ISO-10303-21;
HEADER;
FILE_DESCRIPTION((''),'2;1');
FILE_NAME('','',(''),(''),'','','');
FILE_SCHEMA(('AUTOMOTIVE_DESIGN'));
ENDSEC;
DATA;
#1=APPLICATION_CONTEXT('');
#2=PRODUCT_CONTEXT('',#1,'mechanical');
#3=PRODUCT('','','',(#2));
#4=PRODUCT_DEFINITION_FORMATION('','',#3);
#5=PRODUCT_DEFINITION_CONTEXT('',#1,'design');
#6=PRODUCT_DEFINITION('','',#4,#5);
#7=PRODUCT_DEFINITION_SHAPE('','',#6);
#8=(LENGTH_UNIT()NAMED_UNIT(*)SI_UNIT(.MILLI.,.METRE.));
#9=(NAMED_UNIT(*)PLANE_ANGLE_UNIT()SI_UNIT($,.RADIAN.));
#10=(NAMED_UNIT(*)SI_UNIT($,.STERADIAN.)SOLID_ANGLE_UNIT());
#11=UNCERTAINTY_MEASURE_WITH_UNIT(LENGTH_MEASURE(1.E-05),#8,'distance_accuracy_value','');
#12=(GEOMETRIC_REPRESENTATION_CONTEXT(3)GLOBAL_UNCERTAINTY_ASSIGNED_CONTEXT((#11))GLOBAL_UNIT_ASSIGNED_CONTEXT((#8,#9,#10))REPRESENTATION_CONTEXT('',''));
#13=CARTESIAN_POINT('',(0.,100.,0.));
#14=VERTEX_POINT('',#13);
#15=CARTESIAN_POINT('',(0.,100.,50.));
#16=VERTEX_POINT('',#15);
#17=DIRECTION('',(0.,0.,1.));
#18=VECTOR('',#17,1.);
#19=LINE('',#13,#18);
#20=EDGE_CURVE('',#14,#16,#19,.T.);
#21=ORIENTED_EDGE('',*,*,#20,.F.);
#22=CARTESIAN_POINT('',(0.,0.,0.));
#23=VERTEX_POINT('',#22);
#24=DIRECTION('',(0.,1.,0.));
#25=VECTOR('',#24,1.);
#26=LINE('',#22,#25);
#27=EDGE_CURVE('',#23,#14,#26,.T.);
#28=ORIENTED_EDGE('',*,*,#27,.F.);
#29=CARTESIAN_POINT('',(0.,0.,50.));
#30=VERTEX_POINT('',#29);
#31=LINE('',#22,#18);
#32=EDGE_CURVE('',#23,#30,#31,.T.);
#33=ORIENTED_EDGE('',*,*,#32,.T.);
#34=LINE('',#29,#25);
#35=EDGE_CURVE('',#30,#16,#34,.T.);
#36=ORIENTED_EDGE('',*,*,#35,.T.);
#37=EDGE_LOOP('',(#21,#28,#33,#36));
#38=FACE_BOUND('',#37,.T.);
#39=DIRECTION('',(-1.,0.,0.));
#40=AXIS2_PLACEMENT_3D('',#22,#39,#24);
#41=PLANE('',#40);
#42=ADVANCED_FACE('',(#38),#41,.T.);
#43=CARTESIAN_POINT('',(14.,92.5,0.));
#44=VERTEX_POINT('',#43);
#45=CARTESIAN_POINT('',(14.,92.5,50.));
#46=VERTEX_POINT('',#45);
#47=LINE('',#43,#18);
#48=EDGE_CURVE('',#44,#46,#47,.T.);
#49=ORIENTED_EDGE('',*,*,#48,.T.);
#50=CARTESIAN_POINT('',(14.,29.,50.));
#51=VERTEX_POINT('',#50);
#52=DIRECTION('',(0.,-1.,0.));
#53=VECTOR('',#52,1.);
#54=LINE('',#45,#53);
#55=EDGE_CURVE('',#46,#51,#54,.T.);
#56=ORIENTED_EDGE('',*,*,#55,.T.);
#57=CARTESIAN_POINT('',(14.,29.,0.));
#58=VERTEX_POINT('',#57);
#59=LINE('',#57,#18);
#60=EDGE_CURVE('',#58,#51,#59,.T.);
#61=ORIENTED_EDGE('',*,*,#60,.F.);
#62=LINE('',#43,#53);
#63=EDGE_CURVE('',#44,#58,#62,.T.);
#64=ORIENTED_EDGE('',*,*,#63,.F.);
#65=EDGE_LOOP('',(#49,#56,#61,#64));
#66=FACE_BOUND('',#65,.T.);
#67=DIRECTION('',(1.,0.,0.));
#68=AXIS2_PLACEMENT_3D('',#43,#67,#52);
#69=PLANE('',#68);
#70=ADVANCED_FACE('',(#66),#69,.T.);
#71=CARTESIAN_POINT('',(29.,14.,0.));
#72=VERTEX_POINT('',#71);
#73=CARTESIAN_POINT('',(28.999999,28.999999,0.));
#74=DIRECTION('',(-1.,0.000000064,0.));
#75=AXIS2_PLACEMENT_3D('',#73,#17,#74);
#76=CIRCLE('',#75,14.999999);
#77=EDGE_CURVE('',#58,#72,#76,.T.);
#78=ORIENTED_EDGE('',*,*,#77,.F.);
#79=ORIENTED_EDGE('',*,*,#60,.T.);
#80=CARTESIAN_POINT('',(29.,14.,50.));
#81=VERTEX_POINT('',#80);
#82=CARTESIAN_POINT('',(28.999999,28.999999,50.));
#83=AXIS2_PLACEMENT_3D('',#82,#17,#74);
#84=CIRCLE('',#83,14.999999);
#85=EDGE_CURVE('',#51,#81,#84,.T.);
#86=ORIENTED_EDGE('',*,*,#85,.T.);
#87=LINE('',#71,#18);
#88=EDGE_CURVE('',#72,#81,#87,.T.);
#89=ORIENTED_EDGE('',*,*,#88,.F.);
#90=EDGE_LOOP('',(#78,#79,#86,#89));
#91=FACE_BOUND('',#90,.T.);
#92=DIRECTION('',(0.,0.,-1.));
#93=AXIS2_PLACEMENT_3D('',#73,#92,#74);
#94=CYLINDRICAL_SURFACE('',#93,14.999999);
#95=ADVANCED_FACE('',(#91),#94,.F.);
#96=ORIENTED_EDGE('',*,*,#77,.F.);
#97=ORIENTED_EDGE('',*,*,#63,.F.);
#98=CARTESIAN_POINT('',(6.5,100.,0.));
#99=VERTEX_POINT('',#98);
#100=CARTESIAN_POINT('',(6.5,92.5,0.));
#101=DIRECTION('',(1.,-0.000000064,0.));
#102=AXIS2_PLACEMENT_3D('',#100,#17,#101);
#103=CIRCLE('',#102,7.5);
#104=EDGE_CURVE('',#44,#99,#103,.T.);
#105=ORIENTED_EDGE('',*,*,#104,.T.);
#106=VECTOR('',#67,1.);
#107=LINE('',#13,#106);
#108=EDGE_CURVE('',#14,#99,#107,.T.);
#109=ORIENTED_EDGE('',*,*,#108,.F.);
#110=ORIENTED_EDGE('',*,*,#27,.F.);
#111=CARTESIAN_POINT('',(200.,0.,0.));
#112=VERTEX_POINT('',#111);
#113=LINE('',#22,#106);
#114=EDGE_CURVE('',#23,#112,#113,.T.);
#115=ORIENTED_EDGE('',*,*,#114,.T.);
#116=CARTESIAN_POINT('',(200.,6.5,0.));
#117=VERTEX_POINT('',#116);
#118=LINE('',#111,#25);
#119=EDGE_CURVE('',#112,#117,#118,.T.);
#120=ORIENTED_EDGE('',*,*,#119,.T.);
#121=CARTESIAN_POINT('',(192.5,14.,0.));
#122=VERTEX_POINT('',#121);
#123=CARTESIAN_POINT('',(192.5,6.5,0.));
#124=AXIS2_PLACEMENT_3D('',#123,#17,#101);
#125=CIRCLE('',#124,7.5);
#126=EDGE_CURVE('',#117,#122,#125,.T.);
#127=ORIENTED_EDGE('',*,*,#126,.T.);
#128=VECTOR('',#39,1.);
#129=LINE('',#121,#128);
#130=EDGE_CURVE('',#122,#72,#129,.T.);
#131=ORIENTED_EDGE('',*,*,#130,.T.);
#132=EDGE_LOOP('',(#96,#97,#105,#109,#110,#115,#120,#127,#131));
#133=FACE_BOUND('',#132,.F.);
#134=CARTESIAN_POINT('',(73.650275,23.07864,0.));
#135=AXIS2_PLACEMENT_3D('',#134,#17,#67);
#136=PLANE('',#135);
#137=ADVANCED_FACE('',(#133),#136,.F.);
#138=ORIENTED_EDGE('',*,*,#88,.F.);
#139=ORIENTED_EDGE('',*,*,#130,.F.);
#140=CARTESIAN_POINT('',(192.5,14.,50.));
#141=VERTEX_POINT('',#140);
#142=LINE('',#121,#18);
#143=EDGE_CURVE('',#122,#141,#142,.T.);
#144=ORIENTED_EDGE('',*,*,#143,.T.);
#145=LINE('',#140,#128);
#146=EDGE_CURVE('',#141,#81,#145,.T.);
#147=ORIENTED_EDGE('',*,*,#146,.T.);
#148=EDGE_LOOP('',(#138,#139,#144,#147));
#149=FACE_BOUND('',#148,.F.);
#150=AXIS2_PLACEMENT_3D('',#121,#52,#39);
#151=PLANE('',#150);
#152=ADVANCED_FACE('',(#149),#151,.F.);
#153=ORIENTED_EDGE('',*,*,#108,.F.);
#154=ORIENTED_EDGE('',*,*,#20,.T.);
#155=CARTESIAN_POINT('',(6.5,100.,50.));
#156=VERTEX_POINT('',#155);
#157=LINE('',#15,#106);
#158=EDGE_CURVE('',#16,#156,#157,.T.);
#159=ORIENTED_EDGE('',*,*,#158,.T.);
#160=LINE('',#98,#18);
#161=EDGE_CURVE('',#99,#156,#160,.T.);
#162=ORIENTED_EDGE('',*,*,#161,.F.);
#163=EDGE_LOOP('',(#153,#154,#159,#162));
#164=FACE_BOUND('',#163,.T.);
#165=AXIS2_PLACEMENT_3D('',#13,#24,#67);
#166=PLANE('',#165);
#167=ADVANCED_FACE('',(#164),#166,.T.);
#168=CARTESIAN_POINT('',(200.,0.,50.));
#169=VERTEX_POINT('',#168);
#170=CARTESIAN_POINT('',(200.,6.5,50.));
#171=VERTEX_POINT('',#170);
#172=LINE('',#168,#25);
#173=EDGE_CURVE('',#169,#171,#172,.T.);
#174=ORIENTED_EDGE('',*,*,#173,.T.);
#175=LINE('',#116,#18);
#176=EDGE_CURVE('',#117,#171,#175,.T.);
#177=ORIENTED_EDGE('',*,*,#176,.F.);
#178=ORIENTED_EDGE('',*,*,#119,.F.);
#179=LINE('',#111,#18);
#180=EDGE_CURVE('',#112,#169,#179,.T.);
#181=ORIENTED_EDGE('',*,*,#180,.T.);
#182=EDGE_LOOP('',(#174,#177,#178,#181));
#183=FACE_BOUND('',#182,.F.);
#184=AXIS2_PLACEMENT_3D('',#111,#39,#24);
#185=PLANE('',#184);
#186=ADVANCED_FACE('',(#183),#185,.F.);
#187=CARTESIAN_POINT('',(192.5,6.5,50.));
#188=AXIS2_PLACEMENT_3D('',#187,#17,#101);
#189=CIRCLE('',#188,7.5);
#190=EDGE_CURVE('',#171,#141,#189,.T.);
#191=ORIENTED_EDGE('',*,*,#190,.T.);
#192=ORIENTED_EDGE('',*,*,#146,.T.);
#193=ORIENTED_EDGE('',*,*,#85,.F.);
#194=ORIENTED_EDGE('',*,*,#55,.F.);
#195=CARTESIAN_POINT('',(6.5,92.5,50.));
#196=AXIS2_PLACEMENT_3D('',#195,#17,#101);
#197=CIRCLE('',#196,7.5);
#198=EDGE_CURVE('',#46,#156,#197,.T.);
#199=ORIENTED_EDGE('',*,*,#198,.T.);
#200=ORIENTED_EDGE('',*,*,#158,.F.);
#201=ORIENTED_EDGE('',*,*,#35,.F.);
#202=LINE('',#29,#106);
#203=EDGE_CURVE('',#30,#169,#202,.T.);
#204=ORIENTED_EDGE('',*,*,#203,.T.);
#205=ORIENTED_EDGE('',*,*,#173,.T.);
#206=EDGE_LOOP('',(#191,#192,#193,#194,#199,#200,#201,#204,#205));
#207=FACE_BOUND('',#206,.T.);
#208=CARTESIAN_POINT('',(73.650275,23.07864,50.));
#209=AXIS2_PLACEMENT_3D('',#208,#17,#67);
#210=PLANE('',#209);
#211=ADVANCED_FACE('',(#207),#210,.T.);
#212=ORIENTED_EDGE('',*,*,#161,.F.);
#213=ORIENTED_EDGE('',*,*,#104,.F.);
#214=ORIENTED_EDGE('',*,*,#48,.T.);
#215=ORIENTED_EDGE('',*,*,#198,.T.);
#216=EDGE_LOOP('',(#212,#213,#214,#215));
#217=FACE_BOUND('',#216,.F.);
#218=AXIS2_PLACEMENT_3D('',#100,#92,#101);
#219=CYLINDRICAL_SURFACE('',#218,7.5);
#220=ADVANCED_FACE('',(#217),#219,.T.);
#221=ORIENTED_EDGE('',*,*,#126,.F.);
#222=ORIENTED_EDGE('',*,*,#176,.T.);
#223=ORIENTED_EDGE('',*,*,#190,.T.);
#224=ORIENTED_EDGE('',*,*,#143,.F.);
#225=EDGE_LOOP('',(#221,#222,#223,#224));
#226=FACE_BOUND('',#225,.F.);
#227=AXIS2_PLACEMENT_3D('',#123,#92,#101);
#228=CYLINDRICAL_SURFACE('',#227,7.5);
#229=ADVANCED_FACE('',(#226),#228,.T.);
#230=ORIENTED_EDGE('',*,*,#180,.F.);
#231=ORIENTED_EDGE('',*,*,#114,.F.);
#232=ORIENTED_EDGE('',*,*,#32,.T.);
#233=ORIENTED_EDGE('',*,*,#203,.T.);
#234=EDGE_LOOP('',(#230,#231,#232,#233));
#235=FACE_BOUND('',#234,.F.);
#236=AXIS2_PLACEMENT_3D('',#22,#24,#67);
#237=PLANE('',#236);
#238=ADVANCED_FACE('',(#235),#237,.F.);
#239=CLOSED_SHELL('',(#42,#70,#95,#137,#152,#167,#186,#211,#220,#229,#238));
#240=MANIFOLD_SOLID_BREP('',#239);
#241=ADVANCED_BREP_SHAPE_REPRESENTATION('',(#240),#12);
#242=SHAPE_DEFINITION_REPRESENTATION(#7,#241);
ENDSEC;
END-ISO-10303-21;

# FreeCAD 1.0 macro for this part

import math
import FreeCAD as App
import Part
import Sketcher

V = App.Vector

doc = App.newDocument("Part")
params = doc.addObject("Spreadsheet::Sheet", "Params")
for row, (alias, value) in enumerate([
    ("sketch1_radius", "14.999999 mm"),
    ("sketch1_radius2", "7.5 mm"),
    ("sketch1_width", "200 mm"),
    ("sketch1_height", "100 mm"),
    ("sketch1_width2", "163.5 mm"),
    ("pad1_length", "50 mm"),
], start=1):
    params.set(f"A{row}", alias)
    params.set(f"B{row}", "=" + value)
    params.setAlias(f"B{row}", alias)

body = doc.addObject("PartDesign::Body", "Body")

sketch1 = body.newObject("Sketcher::SketchObject", "Sketch")
sketch1.AttachmentSupport = (doc.getObject("XY_Plane"), [""])
sketch1.MapMode = "FlatFace"
sketch1.addGeometry(Part.LineSegment(V(0, 0, 0), V(200, 0, 0)), False)
sketch1.addGeometry(Part.LineSegment(V(200, 0, 0), V(200, 6, 0)), False)
sketch1.addGeometry(Part.ArcOfCircle(Part.Circle(V(193, 7, 0), V(0, 0, 1), 7), math.radians(0), math.radians(90)), False)
sketch1.addGeometry(Part.LineSegment(V(192, 14, 0), V(29, 14, 0)), False)
sketch1.addGeometry(Part.ArcOfCircle(Part.Circle(V(29, 29, 0), V(0, 0, 1), 15), math.radians(180), math.radians(270)), False)
sketch1.addGeometry(Part.LineSegment(V(14, 29, 0), V(14, 92, 0)), False)
sketch1.addGeometry(Part.ArcOfCircle(Part.Circle(V(7, 93, 0), V(0, 0, 1), 7), math.radians(0), math.radians(90)), False)
sketch1.addGeometry(Part.LineSegment(V(6, 100, 0), V(0, 100, 0)), False)
sketch1.addGeometry(Part.LineSegment(V(0, 100, 0), V(0, 0, 0)), False)
sketch1.addConstraint(Sketcher.Constraint("Coincident", 0, 2, 1, 1))
sketch1.addConstraint(Sketcher.Constraint("Tangent", 1, 2, 2, 1))
sketch1.addConstraint(Sketcher.Constraint("Tangent", 2, 2, 3, 1))
sketch1.addConstraint(Sketcher.Constraint("Tangent", 3, 2, 4, 2))
sketch1.addConstraint(Sketcher.Constraint("Tangent", 4, 1, 5, 1))
sketch1.addConstraint(Sketcher.Constraint("Tangent", 5, 2, 6, 1))
sketch1.addConstraint(Sketcher.Constraint("Tangent", 6, 2, 7, 1))
sketch1.addConstraint(Sketcher.Constraint("Coincident", 7, 2, 8, 1))
sketch1.addConstraint(Sketcher.Constraint("Coincident", 8, 2, 0, 1))
sketch1.addConstraint(Sketcher.Constraint("Horizontal", 0))
sketch1.addConstraint(Sketcher.Constraint("Vertical", 1))
sketch1.addConstraint(Sketcher.Constraint("Horizontal", 3))
sketch1.addConstraint(Sketcher.Constraint("Vertical", 5))
sketch1.addConstraint(Sketcher.Constraint("Horizontal", 7))
sketch1.addConstraint(Sketcher.Constraint("Vertical", 8))
sketch1.addConstraint(Sketcher.Constraint("Coincident", 8, 2, -1, 1))
sketch1.addConstraint(Sketcher.Constraint("Equal", 2, 6))
sketch1.addConstraint(Sketcher.Constraint("Equal", 7, 1))
sketch1.addConstraint(Sketcher.Constraint("Radius", 4, 14.999999))
sketch1.addConstraint(Sketcher.Constraint("Radius", 2, 7.5))
sketch1.addConstraint(Sketcher.Constraint("DistanceX", 0, 1, 0, 2, 200.0))
sketch1.addConstraint(Sketcher.Constraint("DistanceY", 8, 2, 8, 1, 100.0))
sketch1.addConstraint(Sketcher.Constraint("DistanceX", 3, 2, 3, 1, 163.5))
sketch1.setExpression("Constraints[18]", "Params.sketch1_radius")
sketch1.setExpression("Constraints[19]", "Params.sketch1_radius2")
sketch1.setExpression("Constraints[20]", "Params.sketch1_width")
sketch1.setExpression("Constraints[21]", "Params.sketch1_height")
sketch1.setExpression("Constraints[22]", "Params.sketch1_width2")
pad1 = body.newObject("PartDesign::Pad", "Pad")
pad1.Profile = sketch1
pad1.setExpression("Length", "Params.pad1_length")

doc.recompute()
